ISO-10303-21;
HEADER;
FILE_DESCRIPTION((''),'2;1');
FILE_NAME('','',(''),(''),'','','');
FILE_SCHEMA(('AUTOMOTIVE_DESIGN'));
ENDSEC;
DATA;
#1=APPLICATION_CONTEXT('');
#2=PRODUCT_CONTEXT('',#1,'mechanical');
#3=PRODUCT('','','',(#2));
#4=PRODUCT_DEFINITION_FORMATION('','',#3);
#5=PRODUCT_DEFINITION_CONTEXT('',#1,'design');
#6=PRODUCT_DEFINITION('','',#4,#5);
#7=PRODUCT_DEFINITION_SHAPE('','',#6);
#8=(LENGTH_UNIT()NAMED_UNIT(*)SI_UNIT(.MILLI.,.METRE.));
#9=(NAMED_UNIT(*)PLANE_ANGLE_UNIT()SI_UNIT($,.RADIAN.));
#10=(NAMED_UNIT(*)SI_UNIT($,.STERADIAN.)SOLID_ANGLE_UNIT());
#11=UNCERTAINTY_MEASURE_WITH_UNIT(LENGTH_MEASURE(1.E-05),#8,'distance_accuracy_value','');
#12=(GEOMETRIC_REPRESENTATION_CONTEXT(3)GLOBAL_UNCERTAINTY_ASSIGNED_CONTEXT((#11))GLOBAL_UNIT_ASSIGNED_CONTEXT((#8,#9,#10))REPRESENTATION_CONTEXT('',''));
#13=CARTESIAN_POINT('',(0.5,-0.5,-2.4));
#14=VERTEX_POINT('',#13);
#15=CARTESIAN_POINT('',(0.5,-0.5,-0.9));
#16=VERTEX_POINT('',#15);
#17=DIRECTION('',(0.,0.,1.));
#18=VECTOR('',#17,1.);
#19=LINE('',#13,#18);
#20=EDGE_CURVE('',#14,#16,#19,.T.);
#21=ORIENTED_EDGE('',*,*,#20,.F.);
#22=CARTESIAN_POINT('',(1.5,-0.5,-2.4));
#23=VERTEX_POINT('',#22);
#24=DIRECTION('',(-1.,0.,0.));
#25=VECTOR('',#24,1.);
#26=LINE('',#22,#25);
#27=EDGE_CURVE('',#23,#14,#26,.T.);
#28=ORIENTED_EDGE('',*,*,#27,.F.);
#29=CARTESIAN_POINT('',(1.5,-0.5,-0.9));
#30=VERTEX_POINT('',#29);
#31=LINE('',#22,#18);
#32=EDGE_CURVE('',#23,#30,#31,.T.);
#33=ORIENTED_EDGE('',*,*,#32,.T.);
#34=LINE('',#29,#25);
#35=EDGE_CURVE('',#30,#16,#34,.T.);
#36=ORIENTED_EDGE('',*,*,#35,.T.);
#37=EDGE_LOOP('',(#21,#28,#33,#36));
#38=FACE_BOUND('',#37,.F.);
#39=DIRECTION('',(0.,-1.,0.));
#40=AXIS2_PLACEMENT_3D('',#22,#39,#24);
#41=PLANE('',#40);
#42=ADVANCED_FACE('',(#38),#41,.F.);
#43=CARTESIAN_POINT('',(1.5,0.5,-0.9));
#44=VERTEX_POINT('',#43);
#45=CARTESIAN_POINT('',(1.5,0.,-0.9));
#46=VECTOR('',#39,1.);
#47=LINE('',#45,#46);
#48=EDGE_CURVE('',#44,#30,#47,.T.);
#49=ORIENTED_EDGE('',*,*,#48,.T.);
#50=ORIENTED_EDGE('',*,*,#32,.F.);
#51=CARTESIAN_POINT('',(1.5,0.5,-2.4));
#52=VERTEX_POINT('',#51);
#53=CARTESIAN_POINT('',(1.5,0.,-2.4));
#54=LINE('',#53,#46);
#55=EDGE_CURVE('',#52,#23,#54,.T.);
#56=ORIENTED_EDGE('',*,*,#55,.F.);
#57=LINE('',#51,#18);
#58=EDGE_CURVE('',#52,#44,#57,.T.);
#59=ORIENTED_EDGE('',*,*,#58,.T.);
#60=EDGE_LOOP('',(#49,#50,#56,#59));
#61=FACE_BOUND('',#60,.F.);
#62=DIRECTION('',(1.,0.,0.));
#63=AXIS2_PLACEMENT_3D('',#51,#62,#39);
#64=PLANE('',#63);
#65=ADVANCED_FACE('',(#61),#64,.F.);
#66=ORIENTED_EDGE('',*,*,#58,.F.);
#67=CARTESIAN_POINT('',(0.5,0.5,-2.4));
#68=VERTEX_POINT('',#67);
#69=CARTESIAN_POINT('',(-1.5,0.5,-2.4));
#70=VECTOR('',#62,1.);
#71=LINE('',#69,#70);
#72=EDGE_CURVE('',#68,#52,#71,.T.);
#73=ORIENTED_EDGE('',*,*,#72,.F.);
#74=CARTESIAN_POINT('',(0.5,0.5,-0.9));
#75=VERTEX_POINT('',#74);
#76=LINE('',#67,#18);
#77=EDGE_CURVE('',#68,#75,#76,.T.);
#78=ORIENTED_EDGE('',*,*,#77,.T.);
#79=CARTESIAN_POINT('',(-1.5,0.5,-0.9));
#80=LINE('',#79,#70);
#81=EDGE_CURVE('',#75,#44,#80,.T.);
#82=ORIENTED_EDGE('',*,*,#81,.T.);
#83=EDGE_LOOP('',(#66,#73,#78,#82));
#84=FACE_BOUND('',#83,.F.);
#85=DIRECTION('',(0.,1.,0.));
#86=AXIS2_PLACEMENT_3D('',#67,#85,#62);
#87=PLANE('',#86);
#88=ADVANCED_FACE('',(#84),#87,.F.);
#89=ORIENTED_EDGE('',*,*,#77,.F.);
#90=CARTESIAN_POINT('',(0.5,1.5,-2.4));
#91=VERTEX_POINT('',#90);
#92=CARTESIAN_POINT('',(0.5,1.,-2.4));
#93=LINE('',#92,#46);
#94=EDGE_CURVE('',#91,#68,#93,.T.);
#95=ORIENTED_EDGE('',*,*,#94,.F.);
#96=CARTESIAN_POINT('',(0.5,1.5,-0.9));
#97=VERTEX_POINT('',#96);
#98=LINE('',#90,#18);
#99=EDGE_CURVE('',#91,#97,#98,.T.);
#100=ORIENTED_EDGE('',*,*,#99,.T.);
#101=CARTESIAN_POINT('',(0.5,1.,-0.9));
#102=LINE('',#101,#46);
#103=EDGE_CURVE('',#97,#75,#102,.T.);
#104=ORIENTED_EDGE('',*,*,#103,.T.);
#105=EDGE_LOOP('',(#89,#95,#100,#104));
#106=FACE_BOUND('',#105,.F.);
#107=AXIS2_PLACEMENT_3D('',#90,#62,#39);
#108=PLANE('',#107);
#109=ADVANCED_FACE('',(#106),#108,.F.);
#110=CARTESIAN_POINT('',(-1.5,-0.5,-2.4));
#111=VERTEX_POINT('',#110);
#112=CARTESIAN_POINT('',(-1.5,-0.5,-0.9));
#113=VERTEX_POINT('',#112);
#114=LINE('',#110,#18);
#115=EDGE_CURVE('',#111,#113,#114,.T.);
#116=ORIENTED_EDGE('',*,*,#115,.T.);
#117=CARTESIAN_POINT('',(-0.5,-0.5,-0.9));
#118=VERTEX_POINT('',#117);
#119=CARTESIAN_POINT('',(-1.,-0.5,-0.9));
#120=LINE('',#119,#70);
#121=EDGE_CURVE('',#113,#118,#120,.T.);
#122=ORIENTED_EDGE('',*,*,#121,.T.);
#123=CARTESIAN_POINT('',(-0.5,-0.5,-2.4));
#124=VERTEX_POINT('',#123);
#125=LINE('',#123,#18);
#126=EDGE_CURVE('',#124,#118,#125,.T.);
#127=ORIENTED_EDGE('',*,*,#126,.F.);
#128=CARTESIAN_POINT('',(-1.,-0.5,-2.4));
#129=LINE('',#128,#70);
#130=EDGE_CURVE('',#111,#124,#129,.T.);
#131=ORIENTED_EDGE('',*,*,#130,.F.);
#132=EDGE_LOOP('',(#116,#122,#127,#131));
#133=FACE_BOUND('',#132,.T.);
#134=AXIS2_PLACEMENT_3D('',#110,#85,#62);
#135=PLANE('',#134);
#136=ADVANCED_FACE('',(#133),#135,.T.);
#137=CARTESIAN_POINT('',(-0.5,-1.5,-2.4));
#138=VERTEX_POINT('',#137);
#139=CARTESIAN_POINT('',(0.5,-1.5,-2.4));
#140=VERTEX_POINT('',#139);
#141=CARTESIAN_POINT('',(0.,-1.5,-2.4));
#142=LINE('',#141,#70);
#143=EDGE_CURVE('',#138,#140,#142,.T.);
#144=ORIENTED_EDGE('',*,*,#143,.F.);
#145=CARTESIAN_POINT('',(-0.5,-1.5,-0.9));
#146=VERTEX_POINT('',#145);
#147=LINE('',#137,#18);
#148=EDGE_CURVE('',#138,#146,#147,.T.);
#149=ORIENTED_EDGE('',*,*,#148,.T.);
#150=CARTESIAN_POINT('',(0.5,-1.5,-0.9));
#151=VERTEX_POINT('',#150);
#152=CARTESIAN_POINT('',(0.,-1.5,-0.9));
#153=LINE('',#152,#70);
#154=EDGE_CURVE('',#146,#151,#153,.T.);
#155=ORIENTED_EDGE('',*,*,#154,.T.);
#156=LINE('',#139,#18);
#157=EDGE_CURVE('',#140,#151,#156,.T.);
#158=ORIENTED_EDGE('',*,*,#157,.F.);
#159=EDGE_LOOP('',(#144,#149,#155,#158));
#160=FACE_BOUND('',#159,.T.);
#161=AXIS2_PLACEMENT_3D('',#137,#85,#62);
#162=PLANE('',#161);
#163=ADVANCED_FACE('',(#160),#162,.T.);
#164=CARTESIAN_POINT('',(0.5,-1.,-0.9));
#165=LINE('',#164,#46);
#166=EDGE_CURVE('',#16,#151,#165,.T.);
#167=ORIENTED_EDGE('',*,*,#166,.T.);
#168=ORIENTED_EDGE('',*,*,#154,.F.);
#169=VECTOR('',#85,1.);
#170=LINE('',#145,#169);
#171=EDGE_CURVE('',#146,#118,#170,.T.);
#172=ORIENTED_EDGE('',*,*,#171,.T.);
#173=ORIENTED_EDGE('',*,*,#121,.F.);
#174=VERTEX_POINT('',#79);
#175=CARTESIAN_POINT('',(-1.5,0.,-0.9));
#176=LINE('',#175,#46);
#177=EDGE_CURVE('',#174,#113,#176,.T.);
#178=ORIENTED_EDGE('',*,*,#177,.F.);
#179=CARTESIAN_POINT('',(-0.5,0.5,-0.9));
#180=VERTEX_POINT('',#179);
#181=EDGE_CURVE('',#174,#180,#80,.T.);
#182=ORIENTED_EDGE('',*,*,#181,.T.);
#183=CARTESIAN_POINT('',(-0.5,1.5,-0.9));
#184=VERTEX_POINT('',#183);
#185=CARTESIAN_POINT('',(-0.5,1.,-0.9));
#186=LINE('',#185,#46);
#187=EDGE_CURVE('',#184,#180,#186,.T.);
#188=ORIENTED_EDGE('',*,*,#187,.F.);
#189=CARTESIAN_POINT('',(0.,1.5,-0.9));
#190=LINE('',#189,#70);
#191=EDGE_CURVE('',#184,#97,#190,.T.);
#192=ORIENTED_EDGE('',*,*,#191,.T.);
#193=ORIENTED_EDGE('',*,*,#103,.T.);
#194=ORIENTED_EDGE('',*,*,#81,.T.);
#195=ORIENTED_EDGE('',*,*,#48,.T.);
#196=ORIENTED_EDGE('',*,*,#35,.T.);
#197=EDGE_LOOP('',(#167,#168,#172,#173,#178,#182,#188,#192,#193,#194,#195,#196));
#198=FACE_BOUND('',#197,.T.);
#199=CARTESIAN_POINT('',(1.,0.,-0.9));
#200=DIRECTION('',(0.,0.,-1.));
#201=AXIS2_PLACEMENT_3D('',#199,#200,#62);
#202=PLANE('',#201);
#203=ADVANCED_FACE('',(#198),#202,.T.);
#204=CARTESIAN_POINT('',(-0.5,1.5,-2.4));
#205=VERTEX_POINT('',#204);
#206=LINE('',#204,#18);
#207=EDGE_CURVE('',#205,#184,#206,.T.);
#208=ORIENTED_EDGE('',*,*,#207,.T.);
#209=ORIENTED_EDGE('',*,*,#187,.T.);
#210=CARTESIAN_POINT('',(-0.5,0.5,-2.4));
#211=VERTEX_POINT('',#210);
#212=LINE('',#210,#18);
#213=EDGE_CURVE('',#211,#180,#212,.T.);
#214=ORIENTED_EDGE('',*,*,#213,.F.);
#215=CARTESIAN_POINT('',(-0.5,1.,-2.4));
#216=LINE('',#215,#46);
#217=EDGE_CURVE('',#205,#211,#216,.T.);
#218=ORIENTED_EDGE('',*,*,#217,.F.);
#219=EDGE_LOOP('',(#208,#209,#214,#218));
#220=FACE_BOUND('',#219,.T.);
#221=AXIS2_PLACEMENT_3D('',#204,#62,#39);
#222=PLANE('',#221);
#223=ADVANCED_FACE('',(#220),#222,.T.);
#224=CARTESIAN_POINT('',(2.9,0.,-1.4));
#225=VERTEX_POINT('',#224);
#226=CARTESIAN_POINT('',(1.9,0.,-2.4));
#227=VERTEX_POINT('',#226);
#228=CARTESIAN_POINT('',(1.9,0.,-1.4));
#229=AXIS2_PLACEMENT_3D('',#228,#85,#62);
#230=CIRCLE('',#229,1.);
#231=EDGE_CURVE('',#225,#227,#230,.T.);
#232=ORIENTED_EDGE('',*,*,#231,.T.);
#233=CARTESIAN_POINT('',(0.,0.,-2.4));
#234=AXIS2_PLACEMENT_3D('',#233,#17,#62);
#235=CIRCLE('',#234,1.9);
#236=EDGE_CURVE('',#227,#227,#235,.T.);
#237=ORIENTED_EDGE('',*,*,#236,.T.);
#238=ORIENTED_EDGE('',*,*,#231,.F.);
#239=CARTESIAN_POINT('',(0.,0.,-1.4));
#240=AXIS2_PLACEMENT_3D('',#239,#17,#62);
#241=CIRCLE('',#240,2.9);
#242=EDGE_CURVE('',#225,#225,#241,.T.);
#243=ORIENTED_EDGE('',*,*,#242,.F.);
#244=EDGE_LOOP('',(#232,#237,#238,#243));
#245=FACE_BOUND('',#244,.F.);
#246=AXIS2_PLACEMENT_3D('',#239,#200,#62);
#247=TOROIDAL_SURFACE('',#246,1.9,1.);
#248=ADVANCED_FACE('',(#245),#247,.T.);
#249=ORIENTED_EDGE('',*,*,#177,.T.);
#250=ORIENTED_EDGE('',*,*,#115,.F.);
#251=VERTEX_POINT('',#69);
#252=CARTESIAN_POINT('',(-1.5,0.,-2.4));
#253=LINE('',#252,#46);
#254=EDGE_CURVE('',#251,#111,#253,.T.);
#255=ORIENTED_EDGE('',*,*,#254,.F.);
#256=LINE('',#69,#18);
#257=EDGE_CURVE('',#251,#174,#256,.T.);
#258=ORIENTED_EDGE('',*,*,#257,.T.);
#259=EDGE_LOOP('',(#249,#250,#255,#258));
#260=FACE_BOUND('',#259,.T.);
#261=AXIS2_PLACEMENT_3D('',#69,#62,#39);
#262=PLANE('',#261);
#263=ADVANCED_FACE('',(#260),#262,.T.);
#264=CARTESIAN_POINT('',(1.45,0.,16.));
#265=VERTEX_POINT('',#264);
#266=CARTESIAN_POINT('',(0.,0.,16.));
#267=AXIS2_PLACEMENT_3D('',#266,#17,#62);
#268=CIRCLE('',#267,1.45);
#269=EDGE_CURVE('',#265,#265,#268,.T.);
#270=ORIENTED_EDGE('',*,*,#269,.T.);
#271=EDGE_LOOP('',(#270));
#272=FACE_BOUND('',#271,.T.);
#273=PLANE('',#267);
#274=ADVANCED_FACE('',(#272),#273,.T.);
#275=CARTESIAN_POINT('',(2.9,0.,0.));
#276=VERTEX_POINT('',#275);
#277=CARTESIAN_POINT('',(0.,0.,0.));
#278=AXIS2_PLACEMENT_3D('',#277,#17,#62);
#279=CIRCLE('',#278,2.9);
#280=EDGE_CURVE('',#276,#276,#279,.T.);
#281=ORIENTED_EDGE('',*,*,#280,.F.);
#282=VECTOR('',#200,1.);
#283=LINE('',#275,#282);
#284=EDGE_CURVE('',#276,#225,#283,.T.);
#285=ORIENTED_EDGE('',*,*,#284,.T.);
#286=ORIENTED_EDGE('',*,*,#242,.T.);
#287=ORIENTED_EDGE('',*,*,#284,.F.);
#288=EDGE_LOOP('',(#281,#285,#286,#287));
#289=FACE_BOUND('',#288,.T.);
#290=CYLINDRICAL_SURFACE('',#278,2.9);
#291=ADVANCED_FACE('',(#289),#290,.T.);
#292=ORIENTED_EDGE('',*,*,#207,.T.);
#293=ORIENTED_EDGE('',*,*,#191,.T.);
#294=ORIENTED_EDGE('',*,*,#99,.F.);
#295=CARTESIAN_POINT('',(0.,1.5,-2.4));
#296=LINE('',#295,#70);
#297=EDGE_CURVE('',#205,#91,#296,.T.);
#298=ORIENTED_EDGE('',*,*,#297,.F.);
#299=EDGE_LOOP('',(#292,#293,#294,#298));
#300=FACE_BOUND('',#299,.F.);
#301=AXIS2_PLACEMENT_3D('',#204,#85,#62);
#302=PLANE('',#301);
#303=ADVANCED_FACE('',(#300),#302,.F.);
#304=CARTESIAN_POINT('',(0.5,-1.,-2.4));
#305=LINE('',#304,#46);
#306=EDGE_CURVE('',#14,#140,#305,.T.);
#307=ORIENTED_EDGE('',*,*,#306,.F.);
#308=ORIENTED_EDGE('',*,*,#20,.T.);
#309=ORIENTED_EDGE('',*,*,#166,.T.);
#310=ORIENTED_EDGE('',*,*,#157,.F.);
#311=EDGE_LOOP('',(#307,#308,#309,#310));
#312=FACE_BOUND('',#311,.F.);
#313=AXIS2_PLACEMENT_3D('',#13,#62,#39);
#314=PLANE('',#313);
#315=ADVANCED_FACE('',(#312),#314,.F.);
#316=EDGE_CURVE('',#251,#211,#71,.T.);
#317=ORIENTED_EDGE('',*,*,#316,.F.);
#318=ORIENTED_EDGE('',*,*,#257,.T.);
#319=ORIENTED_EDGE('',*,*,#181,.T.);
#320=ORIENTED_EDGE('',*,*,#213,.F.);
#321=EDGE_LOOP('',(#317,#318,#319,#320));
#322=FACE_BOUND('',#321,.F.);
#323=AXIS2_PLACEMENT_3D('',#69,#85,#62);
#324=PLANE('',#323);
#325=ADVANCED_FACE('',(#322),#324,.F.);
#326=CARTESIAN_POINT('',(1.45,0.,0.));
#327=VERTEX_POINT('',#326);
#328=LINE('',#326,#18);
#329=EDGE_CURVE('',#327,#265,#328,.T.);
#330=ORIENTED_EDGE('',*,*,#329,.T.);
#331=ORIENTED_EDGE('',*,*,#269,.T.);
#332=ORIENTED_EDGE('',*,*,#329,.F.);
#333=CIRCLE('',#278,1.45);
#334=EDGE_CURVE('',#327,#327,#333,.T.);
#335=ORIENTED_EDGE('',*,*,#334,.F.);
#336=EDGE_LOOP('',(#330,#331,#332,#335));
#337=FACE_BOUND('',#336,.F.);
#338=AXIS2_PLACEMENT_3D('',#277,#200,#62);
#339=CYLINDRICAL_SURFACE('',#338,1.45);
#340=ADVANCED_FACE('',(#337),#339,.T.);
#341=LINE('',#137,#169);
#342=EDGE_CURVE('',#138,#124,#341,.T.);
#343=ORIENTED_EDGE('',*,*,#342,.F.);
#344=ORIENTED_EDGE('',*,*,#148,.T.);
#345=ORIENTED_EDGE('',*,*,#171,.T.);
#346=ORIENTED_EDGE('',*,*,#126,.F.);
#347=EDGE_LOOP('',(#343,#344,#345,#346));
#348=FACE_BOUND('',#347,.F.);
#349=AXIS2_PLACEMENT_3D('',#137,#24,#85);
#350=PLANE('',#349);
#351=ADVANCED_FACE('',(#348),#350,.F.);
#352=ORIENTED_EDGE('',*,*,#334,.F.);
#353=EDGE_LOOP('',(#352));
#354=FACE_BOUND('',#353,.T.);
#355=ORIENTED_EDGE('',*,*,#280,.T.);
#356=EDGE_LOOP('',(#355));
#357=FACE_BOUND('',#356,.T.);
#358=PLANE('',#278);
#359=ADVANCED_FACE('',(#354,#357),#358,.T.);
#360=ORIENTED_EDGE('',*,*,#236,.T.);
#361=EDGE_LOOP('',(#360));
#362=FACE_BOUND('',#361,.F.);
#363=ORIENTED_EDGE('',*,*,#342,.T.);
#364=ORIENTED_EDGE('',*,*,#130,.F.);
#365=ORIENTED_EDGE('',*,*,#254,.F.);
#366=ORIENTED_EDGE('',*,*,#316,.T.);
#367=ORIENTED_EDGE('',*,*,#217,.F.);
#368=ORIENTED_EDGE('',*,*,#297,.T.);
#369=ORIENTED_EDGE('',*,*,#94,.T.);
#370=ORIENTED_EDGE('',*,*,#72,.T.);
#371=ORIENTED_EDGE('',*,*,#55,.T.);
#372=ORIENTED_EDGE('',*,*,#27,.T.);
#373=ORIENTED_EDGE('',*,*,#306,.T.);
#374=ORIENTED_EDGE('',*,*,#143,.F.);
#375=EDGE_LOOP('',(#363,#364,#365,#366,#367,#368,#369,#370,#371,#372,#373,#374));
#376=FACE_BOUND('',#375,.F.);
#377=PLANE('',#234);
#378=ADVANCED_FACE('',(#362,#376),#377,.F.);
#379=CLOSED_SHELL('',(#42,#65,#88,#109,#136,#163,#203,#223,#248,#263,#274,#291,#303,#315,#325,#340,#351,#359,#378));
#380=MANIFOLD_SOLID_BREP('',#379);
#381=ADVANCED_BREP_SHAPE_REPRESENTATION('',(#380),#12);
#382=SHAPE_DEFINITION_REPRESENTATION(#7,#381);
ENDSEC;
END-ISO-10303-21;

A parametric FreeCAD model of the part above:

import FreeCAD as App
import Part
import Sketcher


def edges_at(feature, points):
    """Names of the edges that pass closest to the given points."""
    edges = feature.Shape.Edges
    near = lambda p: min(range(len(edges)), key=lambda i: edges[i].distToShape(Part.Vertex(*p))[0])
    return sorted({f"Edge{near(p) + 1}" for p in points})


def add_polygon(sketch, points):
    """Adds a closed chain of lines whose ends are joined by coincident constraints."""
    first, n = sketch.GeometryCount, len(points)
    for a, b in zip(points, points[1:] + points[:1]):
        sketch.addGeometry(Part.LineSegment(App.Vector(*a, 0), App.Vector(*b, 0)), False)
    for i in range(n):
        sketch.addConstraint(Sketcher.Constraint("Coincident", first + i, 2, first + (i + 1) % n, 1))

doc = App.newDocument("Part")
params = doc.addObject("Spreadsheet::Sheet", "Params")
for row, (alias, value) in enumerate([
    ("sketch1_diameter", "2.9 mm"),
    ("pad1_length", "16 mm"),
    ("sketch2_diameter", "5.8 mm"),
    ("pad2_length", "2.4 mm"),
    ("fillet_radius", "1 mm"),
    ("sketch3_width", "1 mm"),
    ("pocket1_length", "1.5 mm"),
], start=1):
    params.set(f"A{row}", alias)
    params.set(f"B{row}", "=" + value)
    params.setAlias(f"B{row}", alias)

body = doc.addObject("PartDesign::Body", "Body")

# Sketch on XY plane
sketch1 = doc.addObject("Sketcher::SketchObject", "Sketch")
body.addObject(sketch1)
sketch1.AttachmentSupport = (doc.XY_Plane, [""])
sketch1.MapMode = "FlatFace"
sketch1.addGeometry(Part.Circle(App.Vector(0, 0, 0), App.Vector(0, 0, 1), 1.45), False)
sketch1.addConstraint([
    Sketcher.Constraint("Coincident", 0, 3, -1, 1),
    Sketcher.Constraint("Diameter", 0, 2.9),
])
sketch1.setExpression("Constraints[1]", "Params.sketch1_diameter")
pad1 = doc.addObject("PartDesign::Pad", "Pad")
body.addObject(pad1)
pad1.Profile = sketch1
pad1.setExpression("Length", "Params.pad1_length")

# Sketch on XY plane
sketch2 = doc.addObject("Sketcher::SketchObject", "Sketch001")
body.addObject(sketch2)
sketch2.AttachmentSupport = (doc.XY_Plane, [""])
sketch2.MapMode = "FlatFace"
sketch2.addGeometry(Part.Circle(App.Vector(0, 0, 0), App.Vector(0, 0, 1), 2.9), False)
sketch2.addConstraint([
    Sketcher.Constraint("Coincident", 0, 3, -1, 1),
    Sketcher.Constraint("Diameter", 0, 5.8),
])
sketch2.setExpression("Constraints[1]", "Params.sketch2_diameter")
pad2 = doc.addObject("PartDesign::Pad", "Pad001")
body.addObject(pad2)
pad2.Profile = sketch2
pad2.setExpression("Length", "Params.pad2_length")
pad2.Reversed = True
doc.recompute()

fillet = doc.addObject("PartDesign::Fillet", "Fillet")
body.addObject(fillet)
fillet.Base = (pad2, edges_at(pad2, [(-2.9, 0, -2.4)]))
fillet.setExpression("Radius", "Params.fillet_radius")

# Sketch on XY plane
sketch3 = doc.addObject("Sketcher::SketchObject", "Sketch002")
body.addObject(sketch3)
sketch3.AttachmentSupport = (doc.XY_Plane, [""])
sketch3.MapMode = "FlatFace"
sketch3.AttachmentOffset = App.Placement(App.Vector(0, 0, -2.4), App.Rotation())
add_polygon(sketch3, [(1.5, 0.5), (1.5, -0.5), (0.5, -0.5), (0.5, -1.5), (-0.5, -1.5), (-0.5, -0.5), (-1.5, -0.5), (-1.5, 0.5), (-0.5, 0.5), (-0.5, 1.5), (0.5, 1.5), (0.5, 0.5)])  # lines 0-11
sketch3.addConstraint([
    Sketcher.Constraint("Vertical", 0),
    Sketcher.Constraint("Horizontal", 1),
    Sketcher.Constraint("Vertical", 2),
    Sketcher.Constraint("Horizontal", 3),
    Sketcher.Constraint("Vertical", 4),
    Sketcher.Constraint("Horizontal", 5),
    Sketcher.Constraint("Vertical", 6),
    Sketcher.Constraint("Horizontal", 7),
    Sketcher.Constraint("Vertical", 8),
    Sketcher.Constraint("Horizontal", 9),
    Sketcher.Constraint("Vertical", 10),
    Sketcher.Constraint("Horizontal", 11),
    Sketcher.Constraint("Symmetric", 0, 2, 6, 2, -1, 1),
    Sketcher.Constraint("Symmetric", 2, 2, 8, 2, -1, 1),
    Sketcher.Constraint("Symmetric", 4, 2, 10, 2, -1, 1),
    Sketcher.Constraint("Symmetric", 1, 2, 4, 2, -2),
    Sketcher.Constraint("Equal", 1, 3),
    Sketcher.Constraint("Equal", 11, 0),
    Sketcher.Constraint("Equal", 0, 2),
    Sketcher.Constraint("DistanceX", 1, 2, 1, 1, 1.0),
])
sketch3.setExpression("Constraints[31]", "Params.sketch3_width")
pocket1 = doc.addObject("PartDesign::Pocket", "Pocket")
body.addObject(pocket1)
pocket1.Profile = sketch3
pocket1.setExpression("Length", "Params.pocket1_length")
pocket1.Reversed = True

doc.recompute()
